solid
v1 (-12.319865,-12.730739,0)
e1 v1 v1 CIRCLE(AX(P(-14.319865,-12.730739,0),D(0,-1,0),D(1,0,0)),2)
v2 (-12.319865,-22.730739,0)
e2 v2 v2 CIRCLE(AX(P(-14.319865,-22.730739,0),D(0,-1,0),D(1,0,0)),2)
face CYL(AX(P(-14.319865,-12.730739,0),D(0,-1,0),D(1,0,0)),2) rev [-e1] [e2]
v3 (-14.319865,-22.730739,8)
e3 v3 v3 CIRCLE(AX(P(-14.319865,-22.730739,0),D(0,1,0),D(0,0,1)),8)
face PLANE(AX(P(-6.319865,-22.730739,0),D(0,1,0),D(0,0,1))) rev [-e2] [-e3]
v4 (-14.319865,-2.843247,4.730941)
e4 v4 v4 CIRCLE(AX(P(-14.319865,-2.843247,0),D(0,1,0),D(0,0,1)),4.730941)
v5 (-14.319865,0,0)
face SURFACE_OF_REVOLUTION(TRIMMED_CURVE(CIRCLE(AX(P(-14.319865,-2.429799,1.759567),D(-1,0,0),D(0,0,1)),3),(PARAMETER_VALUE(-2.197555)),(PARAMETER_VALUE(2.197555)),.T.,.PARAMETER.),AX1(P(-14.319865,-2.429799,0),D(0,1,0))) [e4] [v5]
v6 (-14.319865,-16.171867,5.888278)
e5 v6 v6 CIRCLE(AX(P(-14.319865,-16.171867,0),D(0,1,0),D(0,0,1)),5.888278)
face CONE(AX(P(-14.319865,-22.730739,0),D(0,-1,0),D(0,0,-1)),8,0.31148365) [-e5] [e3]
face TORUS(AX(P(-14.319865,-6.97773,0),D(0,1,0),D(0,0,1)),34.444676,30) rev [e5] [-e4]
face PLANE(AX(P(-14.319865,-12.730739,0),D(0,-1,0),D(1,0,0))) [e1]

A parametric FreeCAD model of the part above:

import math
import FreeCAD as App
import Part
import Sketcher

doc = App.newDocument("Part")
body = doc.addObject("PartDesign::Body", "Body")

sketch1 = body.newObject("Sketcher::SketchObject", "Sketch")
sketch1.AttachmentSupport = (doc.getObject("XY_Plane"), [""])
sketch1.MapMode = "FlatFace"
sketch1.addGeometry([
    Part.LineSegment(App.Vector(-14.3, 0, 0), App.Vector(-14.3, -22.7, 0)),
    Part.LineSegment(App.Vector(-14.3, -22.7, 0), App.Vector(-6.3, -22.7, 0)),
    Part.LineSegment(App.Vector(-6.3, -22.7, 0), App.Vector(-8.4, -16.2, 0)),
    Part.ArcOfCircle(Part.Circle(App.Vector(20.1, -7, 0), App.Vector(0, 0, 1), 30), math.radians(172), math.radians(198)),
    Part.ArcOfCircle(Part.Circle(App.Vector(-12.6, -2.4, 0), App.Vector(0, 0, 1), 3), math.radians(-8), math.radians(126)),
], False)
sketch1.addGeometry(Part.LineSegment(App.Vector(-14.3, 0, 0), App.Vector(-14.3, -22.7, 0)), True)
sketch1.addConstraint([
    Sketcher.Constraint("Coincident", 0, 2, 1, 1),
    Sketcher.Constraint("Coincident", 1, 2, 2, 1),
    Sketcher.Constraint("Tangent", 2, 2, 3, 2),
    Sketcher.Constraint("Tangent", 3, 1, 4, 1),
    Sketcher.Constraint("Coincident", 4, 2, 0, 1),
    Sketcher.Constraint("Vertical", 0),
    Sketcher.Constraint("Horizontal", 1),
    Sketcher.Constraint("Vertical", 5),
    Sketcher.Constraint("Coincident", 5, 1, 4, 2),
    Sketcher.Constraint("PointOnObject", 4, 2, -1),
    Sketcher.Constraint("Horizontal", 1, 2, 5, 2),
    Sketcher.Constraint("Radius", 3, 30.0),
    Sketcher.Constraint("Radius", 4, 3.0),
    Sketcher.Constraint("DistanceX", 1, 1, 1, 2, 8.0),
    Sketcher.Constraint("DistanceY", 0, 2, 0, 1, 22.730739),
    Sketcher.Constraint("DistanceY", 4, 3, -1, 1, 2.429799),
    Sketcher.Constraint("Distance", 2, 6.890441),
    Sketcher.Constraint("DistanceX", -1, 1, 3, 3, 20.124811),
])
revolution = body.newObject("PartDesign::Revolution", "Revolution")
revolution.Profile = sketch1
revolution.ReferenceAxis = (sketch1, ["Axis0"])
revolution.Angle = 360

sketch2 = body.newObject("Sketcher::SketchObject", "Sketch001")
sketch2.AttachmentSupport = (doc.getObject("XZ_Plane"), [""])
sketch2.MapMode = "FlatFace"
sketch2.AttachmentOffset = App.Placement(App.Vector(0, 0, 22.730739), App.Rotation())
sketch2.addGeometry(Part.Circle(App.Vector(-14.3, 0, 0), App.Vector(0, 0, 1), 2), False)
sketch2.addConstraint([
    Sketcher.Constraint("PointOnObject", 0, 3, -1),
    Sketcher.Constraint("Diameter", 0, 4.0),
    Sketcher.Constraint("DistanceX", 0, 3, -1, 1, 14.319865),
])
pocket1 = body.newObject("PartDesign::Pocket", "Pocket")
pocket1.Profile = sketch2
pocket1.Length = 10

doc.recompute()
